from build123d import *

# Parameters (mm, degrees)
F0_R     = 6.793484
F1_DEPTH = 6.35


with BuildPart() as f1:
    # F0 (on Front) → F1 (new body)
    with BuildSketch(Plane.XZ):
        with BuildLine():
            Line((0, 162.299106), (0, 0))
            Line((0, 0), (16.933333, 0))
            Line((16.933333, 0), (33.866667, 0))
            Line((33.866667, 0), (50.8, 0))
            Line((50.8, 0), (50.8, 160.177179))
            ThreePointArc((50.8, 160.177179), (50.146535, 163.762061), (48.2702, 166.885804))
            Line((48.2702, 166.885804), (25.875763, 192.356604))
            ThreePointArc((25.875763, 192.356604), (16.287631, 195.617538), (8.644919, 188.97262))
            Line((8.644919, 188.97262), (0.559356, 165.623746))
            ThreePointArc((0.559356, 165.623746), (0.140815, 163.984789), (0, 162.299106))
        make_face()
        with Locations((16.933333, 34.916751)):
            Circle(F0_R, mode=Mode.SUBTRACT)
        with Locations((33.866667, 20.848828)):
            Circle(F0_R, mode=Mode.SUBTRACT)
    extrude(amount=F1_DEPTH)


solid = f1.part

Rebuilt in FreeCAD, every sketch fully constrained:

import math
import FreeCAD as App
import Part
import Sketcher
from FreeCAD import Vector
Q = App.Units.Quantity

doc = App.newDocument("Part")
body = doc.addObject("PartDesign::Body", "Body")

# Sketch on XZ plane
sketch1 = body.newObject("Sketcher::SketchObject", "Sketch")
sketch1.AttachmentSupport = (doc.getObject("XZ_Plane"), [""])
sketch1.MapMode = "FlatFace"
sketch1.addGeometry([
    Part.LineSegment(Vector(0, 162.299106, 0), Vector(0, 0, 0)),  # 0
    Part.LineSegment(Vector(0, 0, 0), Vector(50.8, 0, 0)),  # 1
    Part.LineSegment(Vector(50.8, 0, 0), Vector(50.8, 160.177179, 0)),  # 2
    Part.ArcOfCircle(Part.Circle(Vector(40.63999, 160.177175, 0), Vector(0, 0, 1), 10.16001), math.radians(0.000021), math.radians(41.322562)),  # 3
    Part.LineSegment(Vector(48.2702, 166.885804, 0), Vector(25.875763, 192.356604, 0)),  # 4
    Part.ArcOfCircle(Part.Circle(Vector(18.245563, 185.647979, 0), Vector(0, 0, 1), 10.16), math.radians(41.322582), math.radians(160.899362)),  # 5
    Part.LineSegment(Vector(8.644919, 188.97262, 0), Vector(0.559356, 165.623746, 0)),  # 6
    Part.ArcOfCircle(Part.Circle(Vector(10.16001, 162.299104, 0), Vector(0, 0, 1), 10.16001), math.radians(160.899373), math.radians(179.999987)),  # 7
    Part.Circle(Vector(33.866667, 20.848828, 0), Vector(0, 0, 1), 6.793484),  # 8
    Part.Circle(Vector(16.933333, 34.916751, 0), Vector(0, 0, 1), 6.793484),  # 9
], False)
sketch1.addConstraint([
    Sketcher.Constraint("Coincident", 0, 2, 1, 1),
    Sketcher.Constraint("Coincident", 1, 2, 2, 1),
    Sketcher.Constraint("Coincident", 2, 2, 3, 1),
    Sketcher.Constraint("Coincident", 3, 2, 4, 1),
    Sketcher.Constraint("Coincident", 4, 2, 5, 1),
    Sketcher.Constraint("Coincident", 5, 2, 6, 1),
    Sketcher.Constraint("Coincident", 6, 2, 7, 1),
    Sketcher.Constraint("Coincident", 7, 2, 0, 1),
    Sketcher.Constraint("Vertical", 0),
    Sketcher.Constraint("Horizontal", 1),
    Sketcher.Constraint("Vertical", 2),
    Sketcher.Constraint("Coincident", 0, 2, -1, 1),
    Sketcher.Constraint("Radius", 5, Q("0.4 in")),
    Sketcher.Constraint("DistanceX", 1, 1, 1, 2, Q("2 in")),
    Sketcher.Constraint("Radius", 3, 10.16001),
    Sketcher.Constraint("Radius", 7, 10.16001),
    Sketcher.Constraint("Diameter", 8, 13.586968),
    Sketcher.Constraint("Diameter", 9, 13.586968),
    Sketcher.Constraint("DistanceY", 2, 1, 2, 2, 160.177179),
    Sketcher.Constraint("DistanceX", -1, 1, 3, 2, 48.2702),
    Sketcher.Constraint("DistanceY", 2, 2, 5, 3, 25.4708),
    Sketcher.Constraint("DistanceY", 7, 3, 3, 2, 4.5867),
    Sketcher.Constraint("DistanceX", 5, 3, 4, 2, 7.6302),
    Sketcher.Constraint("DistanceY", 3, 2, 4, 2, 25.4708),
    Sketcher.Constraint("DistanceY", 7, 2, 4, 2, 30.057498),
    Sketcher.Constraint("DistanceY", -1, 1, 8, 3, 20.848828),
    Sketcher.Constraint("DistanceY", -1, 1, 9, 3, 34.916751),
    Sketcher.Constraint("DistanceX", -1, 1, 5, 2, 8.644919),
    Sketcher.Constraint("DistanceY", -1, 1, 5, 2, 188.97262),
    Sketcher.Constraint("DistanceX", 9, 3, 5, 3, 1.31223),
    Sketcher.Constraint("DistanceY", 3, 3, 6, 2, 5.446571),
    Sketcher.Constraint("DistanceX", -1, 1, 8, 3, 33.866667),
])
pad1 = body.newObject("PartDesign::Pad", "Pad")
pad1.Profile = sketch1
pad1.Length = Q("0.25 in")

doc.recompute()
